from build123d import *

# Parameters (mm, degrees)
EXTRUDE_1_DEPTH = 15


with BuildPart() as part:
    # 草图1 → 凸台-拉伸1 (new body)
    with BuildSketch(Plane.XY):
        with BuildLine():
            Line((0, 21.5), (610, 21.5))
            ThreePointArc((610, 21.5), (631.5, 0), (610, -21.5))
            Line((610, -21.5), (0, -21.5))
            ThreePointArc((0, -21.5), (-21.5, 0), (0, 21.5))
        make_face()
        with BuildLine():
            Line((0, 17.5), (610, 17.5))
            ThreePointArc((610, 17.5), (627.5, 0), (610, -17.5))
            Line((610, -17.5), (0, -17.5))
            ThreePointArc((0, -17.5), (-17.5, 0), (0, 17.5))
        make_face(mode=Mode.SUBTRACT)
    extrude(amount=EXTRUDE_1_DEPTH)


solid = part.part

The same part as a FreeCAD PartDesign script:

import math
import FreeCAD as App
import Part
import Sketcher

doc = App.newDocument("Part")
params = doc.addObject("Spreadsheet::Sheet", "Params")
for row, (alias, value) in enumerate([
    ("sketch1_radius", "21.5 mm"),
    ("sketch1_radius2", "17.5 mm"),
    ("sketch1_width", "610 mm"),
    ("pad1_length", "15 mm"),
], start=1):
    params.set(f"A{row}", alias)
    params.set(f"B{row}", "=" + value)
    params.setAlias(f"B{row}", alias)

body = doc.addObject("PartDesign::Body", "Body")

sketch1 = body.newObject("Sketcher::SketchObject", "Sketch")
sketch1.AttachmentSupport = (doc.getObject("XY_Plane"), [""])
sketch1.MapMode = "FlatFace"
sketch1.addGeometry([
    Part.LineSegment(App.Vector(610, 22, 0), App.Vector(0, 22, 0)),
    Part.ArcOfCircle(Part.Circle(App.Vector(0, 0, 0), App.Vector(0, 0, 1), 22), math.radians(90), math.radians(270)),
    Part.LineSegment(App.Vector(0, -22, 0), App.Vector(610, -22, 0)),
    Part.ArcOfCircle(Part.Circle(App.Vector(610, 0, 0), App.Vector(0, 0, 1), 22), math.radians(-90), math.radians(90)),
    Part.LineSegment(App.Vector(0, 18, 0), App.Vector(610, 18, 0)),
    Part.ArcOfCircle(Part.Circle(App.Vector(610, 0, 0), App.Vector(0, 0, 1), 18), math.radians(-90), math.radians(90)),
    Part.LineSegment(App.Vector(610, -18, 0), App.Vector(0, -18, 0)),
    Part.ArcOfCircle(Part.Circle(App.Vector(0, 0, 0), App.Vector(0, 0, 1), 18), math.radians(90), math.radians(270)),
], False)
sketch1.addConstraint([
    Sketcher.Constraint("Tangent", 0, 2, 1, 1),
    Sketcher.Constraint("Tangent", 1, 2, 2, 1),
    Sketcher.Constraint("Tangent", 2, 2, 3, 1),
    Sketcher.Constraint("Tangent", 3, 2, 0, 1),
    Sketcher.Constraint("Tangent", 4, 2, 5, 2),
    Sketcher.Constraint("Tangent", 5, 1, 6, 1),
    Sketcher.Constraint("Tangent", 6, 2, 7, 2),
    Sketcher.Constraint("Tangent", 7, 1, 4, 1),
    Sketcher.Constraint("Horizontal", 0),
    Sketcher.Constraint("Horizontal", 2),
    Sketcher.Constraint("Horizontal", 4),
    Sketcher.Constraint("Horizontal", 6),
    Sketcher.Constraint("Coincident", 1, 3, -1, 1),
    Sketcher.Constraint("Coincident", 7, 3, -1, 1),
    Sketcher.Constraint("Vertical", 5, 3, 2, 2),
    Sketcher.Constraint("Radius", 1, 21.5),
    Sketcher.Constraint("Radius", 5, 17.5),
    Sketcher.Constraint("DistanceX", 0, 2, 0, 1, 610.0),
])
sketch1.setExpression("Constraints[15]", "Params.sketch1_radius")
sketch1.setExpression("Constraints[16]", "Params.sketch1_radius2")
sketch1.setExpression("Constraints[17]", "Params.sketch1_width")
pad1 = body.newObject("PartDesign::Pad", "Pad")
pad1.Profile = sketch1
pad1.setExpression("Length", "Params.pad1_length")

doc.recompute()
